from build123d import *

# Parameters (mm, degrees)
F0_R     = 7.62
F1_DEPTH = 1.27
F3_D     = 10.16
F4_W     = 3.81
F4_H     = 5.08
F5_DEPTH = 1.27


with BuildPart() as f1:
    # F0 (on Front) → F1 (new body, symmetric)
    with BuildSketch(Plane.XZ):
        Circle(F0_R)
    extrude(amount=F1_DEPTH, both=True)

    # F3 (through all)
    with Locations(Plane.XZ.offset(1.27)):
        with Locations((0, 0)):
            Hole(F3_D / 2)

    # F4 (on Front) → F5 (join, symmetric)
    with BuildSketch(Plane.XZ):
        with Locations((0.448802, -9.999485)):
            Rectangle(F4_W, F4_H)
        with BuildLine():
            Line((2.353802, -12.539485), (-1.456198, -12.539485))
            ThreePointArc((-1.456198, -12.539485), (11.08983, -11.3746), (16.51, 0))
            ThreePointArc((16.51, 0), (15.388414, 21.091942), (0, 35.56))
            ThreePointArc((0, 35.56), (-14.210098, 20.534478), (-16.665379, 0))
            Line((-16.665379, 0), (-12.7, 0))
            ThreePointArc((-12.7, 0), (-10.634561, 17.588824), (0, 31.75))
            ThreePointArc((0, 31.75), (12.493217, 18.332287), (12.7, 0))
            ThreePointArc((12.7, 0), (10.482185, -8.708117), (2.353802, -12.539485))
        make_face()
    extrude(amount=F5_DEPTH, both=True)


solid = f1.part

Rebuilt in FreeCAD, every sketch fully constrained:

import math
import FreeCAD as App
import Part
import Sketcher
from FreeCAD import Vector
Q = App.Units.Quantity

doc = App.newDocument("Part")
body = doc.addObject("PartDesign::Body", "Body")

sketch1 = body.newObject("Sketcher::SketchObject", "Sketch")
sketch1.AttachmentSupport = (doc.getObject("XZ_Plane"), [""])
sketch1.MapMode = "FlatFace"
sketch1.addGeometry(Part.Circle(Vector(0, 0, 0), Vector(0, 0, 1), 7.62), False)
sketch1.addConstraint(Sketcher.Constraint("Coincident", 0, 3, -1, 1))
sketch1.addConstraint(Sketcher.Constraint("Diameter", 0, Q("0.6 in")))
pad1 = body.newObject("PartDesign::Pad", "Pad")
pad1.Profile = sketch1
pad1.Length = Q("0.1 in")
pad1.Midplane = True

sketch2 = body.newObject("Sketcher::SketchObject", "Sketch001")
sketch2.AttachmentSupport = (doc.getObject("XZ_Plane"), [""])
sketch2.MapMode = "FlatFace"
sketch2.AttachmentOffset = App.Placement(Vector(0, 0, 0.05 * 25.4), App.Rotation())
sketch2.addGeometry(Part.Circle(Vector(0, 0, 0), Vector(0, 0, 1), 5.08), False)
sketch2.addConstraint(Sketcher.Constraint("Coincident", 0, 3, -1, 1))
sketch2.addConstraint(Sketcher.Constraint("Diameter", 0, Q("0.4 in")))
doc.recompute()
hole = body.newObject("PartDesign::Hole", "Hole")
hole.Profile = sketch2
hole.ThreadType = "None"
hole.Diameter = Q("0.4 in")
hole.DepthType = "ThroughAll"

sketch3 = body.newObject("Sketcher::SketchObject", "Sketch002")
sketch3.AttachmentSupport = (doc.getObject("XZ_Plane"), [""])
sketch3.MapMode = "FlatFace"
sketch3.addGeometry(Part.LineSegment(Vector(-1.456198, -7.459485, 0), Vector(-1.456198, -12.539485, 0)), False)
sketch3.addGeometry(Part.ArcOfCircle(Part.Circle(Vector(3.791883, -0.91832, 0), Vector(0, 0, 1), 12.751228), math.radians(-114.303783), math.radians(4.129913)), False)
sketch3.addGeometry(Part.ArcOfCircle(Part.Circle(Vector(-10.336575, 9.148197, 0), Vector(0, 0, 1), 28.362442), math.radians(-18.816977), math.radians(68.626514)), False)
sketch3.addGeometry(Part.ArcOfCircle(Part.Circle(Vector(15.622126, 6.553451, 0), Vector(0, 0, 1), 32.945875), math.radians(118.305679), math.radians(191.473558)), False)
sketch3.addGeometry(Part.LineSegment(Vector(-16.665379, 0, 0), Vector(-12.7, 0, 0)), False)
sketch3.addGeometry(Part.ArcOfCircle(Part.Circle(Vector(20.917458, 4.968017, 0), Vector(0, 0, 1), 33.982564), math.radians(127.990805), math.radians(188.406376)), False)
sketch3.addGeometry(Part.ArcOfCircle(Part.Circle(Vector(-11.090089, 8.898964, 0), Vector(0, 0, 1), 25.399998), math.radians(-20.508904), math.radians(64.111723)), False)
sketch3.addGeometry(Part.ArcOfCircle(Part.Circle(Vector(2.3538, -2.001471, 0), Vector(0, 0, 1), 10.538014), math.radians(-89.999991), math.radians(10.948623)), False)
sketch3.addGeometry(Part.LineSegment(Vector(2.353802, -12.539485, 0), Vector(2.353802, -7.459485, 0)), False)
sketch3.addGeometry(Part.LineSegment(Vector(2.353802, -7.459485, 0), Vector(-1.456198, -7.459485, 0)), False)
sketch3.addConstraint(Sketcher.Constraint("Coincident", 0, 2, 1, 1))
sketch3.addConstraint(Sketcher.Constraint("Coincident", 1, 2, 2, 1))
sketch3.addConstraint(Sketcher.Constraint("Coincident", 2, 2, 3, 1))
sketch3.addConstraint(Sketcher.Constraint("Coincident", 3, 2, 4, 1))
sketch3.addConstraint(Sketcher.Constraint("Coincident", 4, 2, 5, 2))
sketch3.addConstraint(Sketcher.Constraint("Coincident", 5, 1, 6, 2))
sketch3.addConstraint(Sketcher.Constraint("Coincident", 6, 1, 7, 2))
sketch3.addConstraint(Sketcher.Constraint("Coincident", 7, 1, 8, 1))
sketch3.addConstraint(Sketcher.Constraint("Coincident", 8, 2, 9, 1))
sketch3.addConstraint(Sketcher.Constraint("Coincident", 9, 2, 0, 1))
sketch3.addConstraint(Sketcher.Constraint("Vertical", 0))
sketch3.addConstraint(Sketcher.Constraint("Horizontal", 4))
sketch3.addConstraint(Sketcher.Constraint("Vertical", 8))
sketch3.addConstraint(Sketcher.Constraint("Horizontal", 9))
sketch3.addConstraint(Sketcher.Constraint("Symmetric", 4, 2, 6, 1, -1, 1))
sketch3.addConstraint(Sketcher.Constraint("PointOnObject", 1, 2, -1))
sketch3.addConstraint(Sketcher.Constraint("PointOnObject", 2, 2, -2))
sketch3.addConstraint(Sketcher.Constraint("PointOnObject", 3, 2, -1))
sketch3.addConstraint(Sketcher.Constraint("PointOnObject", 5, 1, -2))
sketch3.addConstraint(Sketcher.Constraint("Horizontal", 0, 2, 7, 1))
sketch3.addConstraint(Sketcher.Constraint("Radius", 6, Q("0.9999999 in")))
sketch3.addConstraint(Sketcher.Constraint("DistanceY", 0, 2, 0, 1, Q("0.2 in")))
sketch3.addConstraint(Sketcher.Constraint("DistanceX", 9, 2, 9, 1, Q("0.15 in")))
sketch3.addConstraint(Sketcher.Constraint("DistanceY", -1, 1, 2, 2, Q("1.4 in")))
sketch3.addConstraint(Sketcher.Constraint("DistanceX", 4, 2, -1, 1, Q("0.5 in")))
sketch3.addConstraint(Sketcher.Constraint("DistanceX", -1, 1, 1, 2, Q("0.65 in")))
sketch3.addConstraint(Sketcher.Constraint("DistanceY", -1, 1, 5, 1, Q("1.25 in")))
sketch3.addConstraint(Sketcher.Constraint("DistanceX", 0, 2, 7, 3, Q("0.1499999 in")))
sketch3.addConstraint(Sketcher.Constraint("Radius", 1, Q("12.751228 mm")))
sketch3.addConstraint(Sketcher.Constraint("Radius", 2, Q("28.362442 mm")))
sketch3.addConstraint(Sketcher.Constraint("Radius", 3, Q("32.945875 mm")))
sketch3.addConstraint(Sketcher.Constraint("Radius", 5, Q("33.982564 mm")))
sketch3.addConstraint(Sketcher.Constraint("Radius", 7, Q("10.538014 mm")))
sketch3.addConstraint(Sketcher.Constraint("DistanceX", 4, 1, 4, 2, Q("3.965379 mm")))
sketch3.addConstraint(Sketcher.Constraint("DistanceX", -1, 1, 7, 3, Q("2.3538 mm")))
pad2 = body.newObject("PartDesign::Pad", "Pad001")
pad2.Profile = sketch3
pad2.Length = Q("0.1 in")
pad2.Midplane = True

doc.recompute()
